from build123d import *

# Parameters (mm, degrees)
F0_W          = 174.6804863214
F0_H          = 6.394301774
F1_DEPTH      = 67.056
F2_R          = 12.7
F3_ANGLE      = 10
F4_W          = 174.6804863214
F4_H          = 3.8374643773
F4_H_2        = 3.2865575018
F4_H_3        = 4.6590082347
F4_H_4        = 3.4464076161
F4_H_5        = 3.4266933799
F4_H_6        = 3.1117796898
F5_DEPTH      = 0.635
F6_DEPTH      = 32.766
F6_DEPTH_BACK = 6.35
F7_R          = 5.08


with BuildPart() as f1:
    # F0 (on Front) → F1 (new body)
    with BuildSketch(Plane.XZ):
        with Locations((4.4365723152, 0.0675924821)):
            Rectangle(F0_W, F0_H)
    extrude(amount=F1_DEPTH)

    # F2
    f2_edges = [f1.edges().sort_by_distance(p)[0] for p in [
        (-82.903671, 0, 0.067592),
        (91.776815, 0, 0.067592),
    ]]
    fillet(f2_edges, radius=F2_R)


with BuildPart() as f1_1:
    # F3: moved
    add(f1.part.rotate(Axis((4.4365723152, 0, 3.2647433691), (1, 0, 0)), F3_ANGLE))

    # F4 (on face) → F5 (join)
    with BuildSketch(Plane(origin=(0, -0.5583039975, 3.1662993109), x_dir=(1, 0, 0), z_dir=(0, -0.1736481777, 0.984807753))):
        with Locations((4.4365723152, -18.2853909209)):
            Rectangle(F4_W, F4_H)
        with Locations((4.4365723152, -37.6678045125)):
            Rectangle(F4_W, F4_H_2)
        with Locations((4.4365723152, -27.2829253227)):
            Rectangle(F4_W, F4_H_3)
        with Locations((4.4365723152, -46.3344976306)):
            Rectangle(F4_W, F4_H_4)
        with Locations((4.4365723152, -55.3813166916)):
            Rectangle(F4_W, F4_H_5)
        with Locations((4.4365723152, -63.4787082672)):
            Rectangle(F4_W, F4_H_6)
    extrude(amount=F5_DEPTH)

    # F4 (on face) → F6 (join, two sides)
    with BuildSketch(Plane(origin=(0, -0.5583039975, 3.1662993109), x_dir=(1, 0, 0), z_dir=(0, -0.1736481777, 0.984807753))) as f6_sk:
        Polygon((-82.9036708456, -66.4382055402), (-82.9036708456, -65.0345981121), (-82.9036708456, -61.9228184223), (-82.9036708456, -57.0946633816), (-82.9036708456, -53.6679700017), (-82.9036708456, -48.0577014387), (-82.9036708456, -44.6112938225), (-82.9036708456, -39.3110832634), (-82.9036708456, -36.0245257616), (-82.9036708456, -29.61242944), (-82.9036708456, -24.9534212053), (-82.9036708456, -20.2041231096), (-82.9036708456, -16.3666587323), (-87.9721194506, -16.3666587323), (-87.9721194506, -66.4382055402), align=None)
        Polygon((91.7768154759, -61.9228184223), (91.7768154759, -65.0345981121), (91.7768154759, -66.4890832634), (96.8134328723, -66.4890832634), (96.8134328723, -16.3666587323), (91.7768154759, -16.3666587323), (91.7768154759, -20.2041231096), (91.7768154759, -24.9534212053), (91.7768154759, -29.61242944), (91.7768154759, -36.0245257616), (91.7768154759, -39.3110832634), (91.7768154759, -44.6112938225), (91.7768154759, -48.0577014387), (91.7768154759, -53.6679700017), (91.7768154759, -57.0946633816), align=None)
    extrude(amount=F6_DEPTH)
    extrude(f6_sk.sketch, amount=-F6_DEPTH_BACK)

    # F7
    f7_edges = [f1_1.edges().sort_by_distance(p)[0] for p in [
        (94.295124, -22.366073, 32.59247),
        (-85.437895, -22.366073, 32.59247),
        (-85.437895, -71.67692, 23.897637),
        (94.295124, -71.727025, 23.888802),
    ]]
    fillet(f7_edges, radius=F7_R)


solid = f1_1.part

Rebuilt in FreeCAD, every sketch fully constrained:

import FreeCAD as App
import Part
import Sketcher

V = App.Vector
Q = App.Units.Quantity


def edges_at(feature, points):
    """Names of the edges that pass closest to the given points."""
    edges = feature.Shape.Edges
    near = lambda p: min(range(len(edges)), key=lambda i: edges[i].distToShape(Part.Vertex(*p))[0])
    return sorted({f"Edge{near(p) + 1}" for p in points})

doc = App.newDocument("Part")
body = doc.addObject("PartDesign::Body", "Body")

sketch1 = doc.addObject("Sketcher::SketchObject", "Sketch")
body.addObject(sketch1)
sketch1.AttachmentSupport = (doc.XZ_Plane, [""])
sketch1.MapMode = "FlatFace"
sketch1.addGeometry(Part.LineSegment(V(-83, 3, 0), V(-83, -3, 0)), False)
sketch1.addGeometry(Part.LineSegment(V(-83, -3, 0), V(92, -3, 0)), False)
sketch1.addGeometry(Part.LineSegment(V(92, -3, 0), V(92, 3, 0)), False)
sketch1.addGeometry(Part.LineSegment(V(92, 3, 0), V(-83, 3, 0)), False)
sketch1.addConstraint(Sketcher.Constraint("Coincident", 0, 2, 1, 1))
sketch1.addConstraint(Sketcher.Constraint("Coincident", 1, 2, 2, 1))
sketch1.addConstraint(Sketcher.Constraint("Coincident", 2, 2, 3, 1))
sketch1.addConstraint(Sketcher.Constraint("Coincident", 3, 2, 0, 1))
sketch1.addConstraint(Sketcher.Constraint("Vertical", 0))
sketch1.addConstraint(Sketcher.Constraint("Horizontal", 1))
sketch1.addConstraint(Sketcher.Constraint("Vertical", 2))
sketch1.addConstraint(Sketcher.Constraint("Horizontal", 3))
sketch1.addConstraint(Sketcher.Constraint("DistanceY", 0, 2, 0, 1, Q("6.394302 mm")))
sketch1.addConstraint(Sketcher.Constraint("DistanceX", 1, 1, 1, 2, Q("174.680486 mm")))
sketch1.addConstraint(Sketcher.Constraint("DistanceX", 0, 2, -1, 1, Q("82.903671 mm")))
sketch1.addConstraint(Sketcher.Constraint("DistanceY", 0, 2, -1, 1, Q("3.129558 mm")))
pad1 = doc.addObject("PartDesign::Pad", "Pad")
body.addObject(pad1)
pad1.Profile = sketch1
pad1.Length = Q("2.64 in")
doc.recompute()

fillet = doc.addObject("PartDesign::Fillet", "Fillet")
body.addObject(fillet)
fillet.Base = (pad1, edges_at(pad1, [(-82.904, 0, 0.068), (91.777, 0, 0.068)]))
fillet.Radius = Q("0.5 in")
body2 = doc.addObject("PartDesign::Body", "Body001")
doc.recompute()

body.Placement = App.Placement(V(0, 0.566917, 0.049599), App.Rotation(V(1, 0, 0), 10))
boolean = doc.addObject("PartDesign::Boolean", "Boolean")
body2.addObject(boolean)
boolean.Type = "Fuse"
boolean.addObjects([body])

sketch2 = doc.addObject("Sketcher::SketchObject", "Sketch001")
body2.addObject(sketch2)
sketch2.Placement = App.Placement(V(0, -0.558304, 3.166299), App.Rotation(V(1, 0, 0), V(0, 0.984807753, 0.173648178), V(0, -0.173648178, 0.984807753), "ZXY"))
sketch2.addGeometry(Part.LineSegment(V(-82.9, -16.4, 0), V(-82.9, -20.2, 0)), False)
sketch2.addGeometry(Part.LineSegment(V(-82.9, -20.2, 0), V(91.8, -20.2, 0)), False)
sketch2.addGeometry(Part.LineSegment(V(91.8, -20.2, 0), V(91.8, -16.4, 0)), False)
sketch2.addGeometry(Part.LineSegment(V(91.8, -16.4, 0), V(-82.9, -16.4, 0)), False)
sketch2.addGeometry(Part.LineSegment(V(-82.9, -36, 0), V(-82.9, -39.3, 0)), False)
sketch2.addGeometry(Part.LineSegment(V(-82.9, -39.3, 0), V(91.8, -39.3, 0)), False)
sketch2.addGeometry(Part.LineSegment(V(91.8, -39.3, 0), V(91.8, -36, 0)), False)
sketch2.addGeometry(Part.LineSegment(V(91.8, -36, 0), V(-82.9, -36, 0)), False)
sketch2.addGeometry(Part.LineSegment(V(-82.9, -25, 0), V(-82.9, -29.6, 0)), False)
sketch2.addGeometry(Part.LineSegment(V(-82.9, -29.6, 0), V(91.8, -29.6, 0)), False)
sketch2.addGeometry(Part.LineSegment(V(91.8, -29.6, 0), V(91.8, -25, 0)), False)
sketch2.addGeometry(Part.LineSegment(V(91.8, -25, 0), V(-82.9, -25, 0)), False)
sketch2.addGeometry(Part.LineSegment(V(-82.9, -44.6, 0), V(-82.9, -48.1, 0)), False)
sketch2.addGeometry(Part.LineSegment(V(-82.9, -48.1, 0), V(91.8, -48.1, 0)), False)
sketch2.addGeometry(Part.LineSegment(V(91.8, -48.1, 0), V(91.8, -44.6, 0)), False)
sketch2.addGeometry(Part.LineSegment(V(91.8, -44.6, 0), V(-82.9, -44.6, 0)), False)
sketch2.addGeometry(Part.LineSegment(V(-82.9, -53.7, 0), V(-82.9, -57.1, 0)), False)
sketch2.addGeometry(Part.LineSegment(V(-82.9, -57.1, 0), V(91.8, -57.1, 0)), False)
sketch2.addGeometry(Part.LineSegment(V(91.8, -57.1, 0), V(91.8, -53.7, 0)), False)
sketch2.addGeometry(Part.LineSegment(V(91.8, -53.7, 0), V(-82.9, -53.7, 0)), False)
sketch2.addGeometry(Part.LineSegment(V(-82.9, -61.9, 0), V(-82.9, -65, 0)), False)
sketch2.addGeometry(Part.LineSegment(V(-82.9, -65, 0), V(91.8, -65, 0)), False)
sketch2.addGeometry(Part.LineSegment(V(91.8, -65, 0), V(91.8, -61.9, 0)), False)
sketch2.addGeometry(Part.LineSegment(V(91.8, -61.9, 0), V(-82.9, -61.9, 0)), False)
sketch2.addConstraint(Sketcher.Constraint("Coincident", 0, 2, 1, 1))
sketch2.addConstraint(Sketcher.Constraint("Coincident", 1, 2, 2, 1))
sketch2.addConstraint(Sketcher.Constraint("Coincident", 2, 2, 3, 1))
sketch2.addConstraint(Sketcher.Constraint("Coincident", 3, 2, 0, 1))
sketch2.addConstraint(Sketcher.Constraint("Coincident", 4, 2, 5, 1))
sketch2.addConstraint(Sketcher.Constraint("Coincident", 5, 2, 6, 1))
sketch2.addConstraint(Sketcher.Constraint("Coincident", 6, 2, 7, 1))
sketch2.addConstraint(Sketcher.Constraint("Coincident", 7, 2, 4, 1))
sketch2.addConstraint(Sketcher.Constraint("Coincident", 8, 2, 9, 1))
sketch2.addConstraint(Sketcher.Constraint("Coincident", 9, 2, 10, 1))
sketch2.addConstraint(Sketcher.Constraint("Coincident", 10, 2, 11, 1))
sketch2.addConstraint(Sketcher.Constraint("Coincident", 11, 2, 8, 1))
sketch2.addConstraint(Sketcher.Constraint("Coincident", 12, 2, 13, 1))
sketch2.addConstraint(Sketcher.Constraint("Coincident", 13, 2, 14, 1))
sketch2.addConstraint(Sketcher.Constraint("Coincident", 14, 2, 15, 1))
sketch2.addConstraint(Sketcher.Constraint("Coincident", 15, 2, 12, 1))
sketch2.addConstraint(Sketcher.Constraint("Coincident", 16, 2, 17, 1))
sketch2.addConstraint(Sketcher.Constraint("Coincident", 17, 2, 18, 1))
sketch2.addConstraint(Sketcher.Constraint("Coincident", 18, 2, 19, 1))
sketch2.addConstraint(Sketcher.Constraint("Coincident", 19, 2, 16, 1))
sketch2.addConstraint(Sketcher.Constraint("Coincident", 20, 2, 21, 1))
sketch2.addConstraint(Sketcher.Constraint("Coincident", 21, 2, 22, 1))
sketch2.addConstraint(Sketcher.Constraint("Coincident", 22, 2, 23, 1))
sketch2.addConstraint(Sketcher.Constraint("Coincident", 23, 2, 20, 1))
sketch2.addConstraint(Sketcher.Constraint("Vertical", 0))
sketch2.addConstraint(Sketcher.Constraint("Horizontal", 1))
sketch2.addConstraint(Sketcher.Constraint("Vertical", 2))
sketch2.addConstraint(Sketcher.Constraint("Horizontal", 3))
sketch2.addConstraint(Sketcher.Constraint("Vertical", 4))
sketch2.addConstraint(Sketcher.Constraint("Horizontal", 5))
sketch2.addConstraint(Sketcher.Constraint("Vertical", 6))
sketch2.addConstraint(Sketcher.Constraint("Horizontal", 7))
sketch2.addConstraint(Sketcher.Constraint("Vertical", 8))
sketch2.addConstraint(Sketcher.Constraint("Horizontal", 9))
sketch2.addConstraint(Sketcher.Constraint("Vertical", 10))
sketch2.addConstraint(Sketcher.Constraint("Horizontal", 11))
sketch2.addConstraint(Sketcher.Constraint("Vertical", 12))
sketch2.addConstraint(Sketcher.Constraint("Horizontal", 13))
sketch2.addConstraint(Sketcher.Constraint("Vertical", 14))
sketch2.addConstraint(Sketcher.Constraint("Horizontal", 15))
sketch2.addConstraint(Sketcher.Constraint("Vertical", 16))
sketch2.addConstraint(Sketcher.Constraint("Horizontal", 17))
sketch2.addConstraint(Sketcher.Constraint("Vertical", 18))
sketch2.addConstraint(Sketcher.Constraint("Horizontal", 19))
sketch2.addConstraint(Sketcher.Constraint("Vertical", 20))
sketch2.addConstraint(Sketcher.Constraint("Horizontal", 21))
sketch2.addConstraint(Sketcher.Constraint("Vertical", 22))
sketch2.addConstraint(Sketcher.Constraint("Horizontal", 23))
sketch2.addConstraint(Sketcher.Constraint("Vertical", 3, 2, 4, 2))
sketch2.addConstraint(Sketcher.Constraint("Vertical", 2, 2, 5, 2))
sketch2.addConstraint(Sketcher.Constraint("Vertical", 7, 2, 8, 2))
sketch2.addConstraint(Sketcher.Constraint("Vertical", 6, 2, 9, 2))
sketch2.addConstraint(Sketcher.Constraint("Vertical", 11, 2, 12, 2))
sketch2.addConstraint(Sketcher.Constraint("Vertical", 10, 2, 13, 2))
sketch2.addConstraint(Sketcher.Constraint("Vertical", 15, 2, 16, 2))
sketch2.addConstraint(Sketcher.Constraint("Vertical", 14, 2, 17, 2))
sketch2.addConstraint(Sketcher.Constraint("Vertical", 19, 2, 20, 2))
sketch2.addConstraint(Sketcher.Constraint("Vertical", 18, 2, 21, 2))
sketch2.addConstraint(Sketcher.Constraint("DistanceY", 8, 2, 8, 1, Q("4.659008 mm")))
sketch2.addConstraint(Sketcher.Constraint("DistanceY", 20, 2, 20, 1, Q("3.11178 mm")))
sketch2.addConstraint(Sketcher.Constraint("DistanceY", 12, 2, -1, 1, Q("48.057701 mm")))
sketch2.addConstraint(Sketcher.Constraint("DistanceY", 20, 2, -1, 1, Q("65.034598 mm")))
sketch2.addConstraint(Sketcher.Constraint("DistanceY", 10, 2, 1, 2, Q("4.749298 mm")))
sketch2.addConstraint(Sketcher.Constraint("DistanceX", 1, 1, 1, 2, Q("174.680486 mm")))
sketch2.addConstraint(Sketcher.Constraint("DistanceY", 0, 2, 0, 1, Q("3.837464 mm")))
sketch2.addConstraint(Sketcher.Constraint("DistanceY", 4, 2, 4, 1, Q("3.286558 mm")))
sketch2.addConstraint(Sketcher.Constraint("DistanceY", 12, 2, 12, 1, Q("3.446408 mm")))
sketch2.addConstraint(Sketcher.Constraint("DistanceY", 16, 2, 16, 1, Q("3.426693 mm")))
sketch2.addConstraint(Sketcher.Constraint("DistanceX", 0, 2, -1, 1, Q("82.903671 mm")))
sketch2.addConstraint(Sketcher.Constraint("DistanceY", 2, 2, -1, 1, Q("16.366659 mm")))
sketch2.addConstraint(Sketcher.Constraint("DistanceY", 18, 2, -1, 1, Q("53.66797 mm")))
sketch2.addConstraint(Sketcher.Constraint("DistanceY", 4, 2, 0, 2, Q("19.10696 mm")))
pad2 = doc.addObject("PartDesign::Pad", "Pad001")
body2.addObject(pad2)
pad2.Profile = sketch2
pad2.Length = Q("0.025 in")

sketch3 = doc.addObject("Sketcher::SketchObject", "Sketch002")
body2.addObject(sketch3)
sketch3.Placement = App.Placement(V(0, -0.558304, 3.166299), App.Rotation(V(1, 0, 0), V(0, 0.984807753, 0.173648178), V(0, -0.173648178, 0.984807753), "ZXY"))
sketch3.addGeometry(Part.LineSegment(V(-83, -66, 0), V(-83, -16, 0)), False)
sketch3.addGeometry(Part.LineSegment(V(-83, -16, 0), V(-88, -16, 0)), False)
sketch3.addGeometry(Part.LineSegment(V(-88, -16, 0), V(-88, -66, 0)), False)
sketch3.addGeometry(Part.LineSegment(V(-88, -66, 0), V(-83, -66, 0)), False)
sketch3.addGeometry(Part.LineSegment(V(92, -66, 0), V(97, -66, 0)), False)
sketch3.addGeometry(Part.LineSegment(V(97, -66, 0), V(97, -16, 0)), False)
sketch3.addGeometry(Part.LineSegment(V(97, -16, 0), V(92, -16, 0)), False)
sketch3.addGeometry(Part.LineSegment(V(92, -16, 0), V(92, -66, 0)), False)
sketch3.addConstraint(Sketcher.Constraint("Coincident", 0, 2, 1, 1))
sketch3.addConstraint(Sketcher.Constraint("Coincident", 1, 2, 2, 1))
sketch3.addConstraint(Sketcher.Constraint("Coincident", 2, 2, 3, 1))
sketch3.addConstraint(Sketcher.Constraint("Coincident", 3, 2, 0, 1))
sketch3.addConstraint(Sketcher.Constraint("Coincident", 4, 2, 5, 1))
sketch3.addConstraint(Sketcher.Constraint("Coincident", 5, 2, 6, 1))
sketch3.addConstraint(Sketcher.Constraint("Coincident", 6, 2, 7, 1))
sketch3.addConstraint(Sketcher.Constraint("Coincident", 7, 2, 4, 1))
sketch3.addConstraint(Sketcher.Constraint("Vertical", 0))
sketch3.addConstraint(Sketcher.Constraint("Horizontal", 1))
sketch3.addConstraint(Sketcher.Constraint("Vertical", 2))
sketch3.addConstraint(Sketcher.Constraint("Horizontal", 3))
sketch3.addConstraint(Sketcher.Constraint("Horizontal", 4))
sketch3.addConstraint(Sketcher.Constraint("Vertical", 5))
sketch3.addConstraint(Sketcher.Constraint("Horizontal", 6))
sketch3.addConstraint(Sketcher.Constraint("Vertical", 7))
sketch3.addConstraint(Sketcher.Constraint("Horizontal", 1, 2, 5, 2))
sketch3.addConstraint(Sketcher.Constraint("DistanceX", 1, 2, 1, 1, Q("5.068449 mm")))
sketch3.addConstraint(Sketcher.Constraint("DistanceX", 4, 1, 4, 2, Q("5.036617 mm")))
sketch3.addConstraint(Sketcher.Constraint("DistanceY", 0, 1, 0, 2, Q("50.071547 mm")))
sketch3.addConstraint(Sketcher.Constraint("DistanceY", 5, 1, 5, 2, Q("50.122425 mm")))
sketch3.addConstraint(Sketcher.Constraint("DistanceX", 0, 2, -1, 1, Q("82.903671 mm")))
sketch3.addConstraint(Sketcher.Constraint("DistanceY", 0, 2, -1, 1, Q("16.366659 mm")))
sketch3.addConstraint(Sketcher.Constraint("DistanceX", -1, 1, 4, 2, Q("96.813433 mm")))
pad3 = doc.addObject("PartDesign::Pad", "Pad002")
body2.addObject(pad3)
pad3.Profile = sketch3
pad3.Type = "TwoLengths"
pad3.Length = Q("1.29 in")
pad3.Length2 = Q("0.25 in")
doc.recompute()

fillet2 = doc.addObject("PartDesign::Fillet", "Fillet001")
body2.addObject(fillet2)
fillet2.Base = (pad3, edges_at(pad3, [
    (94.295, -22.366, 32.592),
    (-85.438, -22.366, 32.592),
    (-85.438, -71.677, 23.898),
    (94.295, -71.727, 23.889),
]))
fillet2.Radius = Q("0.2 in")

doc.recompute()
